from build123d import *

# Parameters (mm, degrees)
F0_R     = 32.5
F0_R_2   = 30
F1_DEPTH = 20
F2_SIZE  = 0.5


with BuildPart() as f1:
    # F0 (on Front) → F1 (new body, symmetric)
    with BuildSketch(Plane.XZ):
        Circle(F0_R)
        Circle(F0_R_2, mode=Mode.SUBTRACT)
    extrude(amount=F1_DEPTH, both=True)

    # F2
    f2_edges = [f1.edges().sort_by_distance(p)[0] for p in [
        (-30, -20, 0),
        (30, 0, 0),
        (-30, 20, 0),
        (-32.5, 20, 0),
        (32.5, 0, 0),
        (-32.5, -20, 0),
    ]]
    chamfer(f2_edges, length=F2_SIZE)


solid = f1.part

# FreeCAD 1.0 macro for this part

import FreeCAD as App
import Part
import Sketcher

V = App.Vector

doc = App.newDocument("Part")
body = doc.addObject("PartDesign::Body", "Body")

# Sketch on XZ plane
sketch1 = doc.addObject("Sketcher::SketchObject", "Sketch")
body.addObject(sketch1)
sketch1.AttachmentSupport = (doc.XZ_Plane, [""])
sketch1.MapMode = "FlatFace"
sketch1.addGeometry(Part.Circle(V(0, 0, 0), V(0, 0, 1), 32), False)
sketch1.addGeometry(Part.Circle(V(0, 0, 0), V(0, 0, 1), 30), False)
sketch1.addConstraint(Sketcher.Constraint("Coincident", 0, 3, -1, 1))
sketch1.addConstraint(Sketcher.Constraint("Coincident", 1, 3, -1, 1))
sketch1.addConstraint(Sketcher.Constraint("Diameter", 0, 65.0))
sketch1.addConstraint(Sketcher.Constraint("Diameter", 1, 60.0))
pad1 = doc.addObject("PartDesign::Pad", "Pad")
body.addObject(pad1)
pad1.Profile = sketch1
pad1.Length = 40
pad1.Midplane = True
doc.recompute()

chamfer = doc.addObject("PartDesign::Chamfer", "Chamfer")
body.addObject(chamfer)
chamfer.Base = (pad1, ["Edge1"])
chamfer.UseAllEdges = True
chamfer.Size = 0.5

doc.recompute()
